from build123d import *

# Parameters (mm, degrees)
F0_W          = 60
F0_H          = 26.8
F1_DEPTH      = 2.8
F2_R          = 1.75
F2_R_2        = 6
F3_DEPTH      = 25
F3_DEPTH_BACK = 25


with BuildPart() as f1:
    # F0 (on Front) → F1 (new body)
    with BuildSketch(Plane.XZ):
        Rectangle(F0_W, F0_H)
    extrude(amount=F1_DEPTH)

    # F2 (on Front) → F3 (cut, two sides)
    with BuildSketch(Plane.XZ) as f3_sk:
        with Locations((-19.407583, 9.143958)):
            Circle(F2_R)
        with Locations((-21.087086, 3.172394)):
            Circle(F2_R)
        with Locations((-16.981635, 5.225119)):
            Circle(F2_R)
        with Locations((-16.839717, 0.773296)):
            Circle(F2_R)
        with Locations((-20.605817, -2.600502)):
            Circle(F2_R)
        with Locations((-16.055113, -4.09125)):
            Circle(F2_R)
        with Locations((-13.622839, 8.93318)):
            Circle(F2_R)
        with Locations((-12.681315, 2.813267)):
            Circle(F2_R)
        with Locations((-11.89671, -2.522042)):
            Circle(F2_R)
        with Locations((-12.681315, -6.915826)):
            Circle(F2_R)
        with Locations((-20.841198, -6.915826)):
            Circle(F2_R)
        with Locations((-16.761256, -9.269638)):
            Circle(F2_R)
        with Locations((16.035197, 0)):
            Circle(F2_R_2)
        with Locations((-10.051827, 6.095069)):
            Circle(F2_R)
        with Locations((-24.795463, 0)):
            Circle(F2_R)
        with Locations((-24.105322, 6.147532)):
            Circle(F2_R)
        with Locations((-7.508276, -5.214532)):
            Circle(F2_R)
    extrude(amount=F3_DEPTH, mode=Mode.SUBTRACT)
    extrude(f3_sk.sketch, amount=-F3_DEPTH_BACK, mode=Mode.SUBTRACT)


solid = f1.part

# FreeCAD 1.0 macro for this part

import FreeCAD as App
import Part
import Sketcher

V = App.Vector
Q = App.Units.Quantity


def add_polygon(sketch, points):
    """Adds a closed chain of lines whose ends are joined by coincident constraints."""
    first, n = sketch.GeometryCount, len(points)
    for a, b in zip(points, points[1:] + points[:1]):
        sketch.addGeometry(Part.LineSegment(App.Vector(*a, 0), App.Vector(*b, 0)), False)
    for i in range(n):
        sketch.addConstraint(Sketcher.Constraint("Coincident", first + i, 2, first + (i + 1) % n, 1))

doc = App.newDocument("Part")
body = doc.addObject("PartDesign::Body", "Body")

# Sketch on XZ plane
sketch1 = body.newObject("Sketcher::SketchObject", "Sketch")
sketch1.AttachmentSupport = (doc.getObject("XZ_Plane"), [""])
sketch1.MapMode = "FlatFace"
add_polygon(sketch1, [(-30, 13.4), (-30, -13.4), (30, -13.4), (30, 13.4)])  # lines 0-3
sketch1.addConstraint(Sketcher.Constraint("Vertical", 0))
sketch1.addConstraint(Sketcher.Constraint("Horizontal", 1))
sketch1.addConstraint(Sketcher.Constraint("Vertical", 2))
sketch1.addConstraint(Sketcher.Constraint("Horizontal", 3))
sketch1.addConstraint(Sketcher.Constraint("Symmetric", 0, 2, 2, 2, -1, 1))
sketch1.addConstraint(Sketcher.Constraint("DistanceX", 1, 1, 1, 2, Q("60 mm")))
sketch1.addConstraint(Sketcher.Constraint("DistanceY", 0, 2, 0, 1, Q("26.8 mm")))
pad1 = body.newObject("PartDesign::Pad", "Pad")
pad1.Profile = sketch1
pad1.Length = 2.8

# Sketch on XZ plane
sketch2 = body.newObject("Sketcher::SketchObject", "Sketch001")
sketch2.AttachmentSupport = (doc.getObject("XZ_Plane"), [""])
sketch2.MapMode = "FlatFace"
sketch2.addGeometry(Part.Circle(V(-19.407583, 9.143958, 0), V(0, 0, 1), 1.75), False)
sketch2.addGeometry(Part.Circle(V(-21.087086, 3.172394, 0), V(0, 0, 1), 1.75), False)
sketch2.addGeometry(Part.Circle(V(-16.981635, 5.225119, 0), V(0, 0, 1), 1.75), False)
sketch2.addGeometry(Part.Circle(V(-16.839717, 0.773296, 0), V(0, 0, 1), 1.75), False)
sketch2.addGeometry(Part.Circle(V(-20.605817, -2.600502, 0), V(0, 0, 1), 1.75), False)
sketch2.addGeometry(Part.Circle(V(-16.055113, -4.09125, 0), V(0, 0, 1), 1.75), False)
sketch2.addGeometry(Part.Circle(V(-13.622839, 8.93318, 0), V(0, 0, 1), 1.75), False)
sketch2.addGeometry(Part.Circle(V(-12.681315, 2.813267, 0), V(0, 0, 1), 1.75), False)
sketch2.addGeometry(Part.Circle(V(-11.89671, -2.522042, 0), V(0, 0, 1), 1.75), False)
sketch2.addGeometry(Part.Circle(V(-12.681315, -6.915826, 0), V(0, 0, 1), 1.75), False)
sketch2.addGeometry(Part.Circle(V(-20.841198, -6.915826, 0), V(0, 0, 1), 1.75), False)
sketch2.addGeometry(Part.Circle(V(-16.761256, -9.269638, 0), V(0, 0, 1), 1.75), False)
sketch2.addGeometry(Part.Circle(V(16.035197, 0, 0), V(0, 0, 1), 6), False)
sketch2.addGeometry(Part.Circle(V(-10.051827, 6.095069, 0), V(0, 0, 1), 1.75), False)
sketch2.addGeometry(Part.Circle(V(-24.795463, 0, 0), V(0, 0, 1), 1.75), False)
sketch2.addGeometry(Part.Circle(V(-24.105322, 6.147532, 0), V(0, 0, 1), 1.75), False)
sketch2.addGeometry(Part.Circle(V(-7.508276, -5.214532, 0), V(0, 0, 1), 1.75), False)
sketch2.addConstraint(Sketcher.Constraint("Equal", 0, 1))
sketch2.addConstraint(Sketcher.Constraint("Equal", 1, 2))
sketch2.addConstraint(Sketcher.Constraint("Equal", 2, 3))
sketch2.addConstraint(Sketcher.Constraint("Equal", 3, 4))
sketch2.addConstraint(Sketcher.Constraint("Equal", 4, 5))
sketch2.addConstraint(Sketcher.Constraint("Equal", 5, 6))
sketch2.addConstraint(Sketcher.Constraint("Equal", 6, 7))
sketch2.addConstraint(Sketcher.Constraint("Equal", 7, 8))
sketch2.addConstraint(Sketcher.Constraint("Equal", 8, 9))
sketch2.addConstraint(Sketcher.Constraint("Equal", 9, 10))
sketch2.addConstraint(Sketcher.Constraint("Equal", 10, 11))
sketch2.addConstraint(Sketcher.Constraint("Equal", 11, 13))
sketch2.addConstraint(Sketcher.Constraint("Equal", 13, 14))
sketch2.addConstraint(Sketcher.Constraint("Equal", 14, 15))
sketch2.addConstraint(Sketcher.Constraint("Equal", 15, 16))
sketch2.addConstraint(Sketcher.Constraint("PointOnObject", 12, 3, -1))
sketch2.addConstraint(Sketcher.Constraint("PointOnObject", 14, 3, -1))
sketch2.addConstraint(Sketcher.Constraint("Horizontal", 9, 3, 10, 3))
sketch2.addConstraint(Sketcher.Constraint("Vertical", 7, 3, 9, 3))
sketch2.addConstraint(Sketcher.Constraint("Diameter", 12, Q("12 mm")))
sketch2.addConstraint(Sketcher.Constraint("Diameter", 0, Q("3.5 mm")))
sketch2.addConstraint(Sketcher.Constraint("DistanceY", 3, 3, 1, 3, Q("2.399098 mm")))
sketch2.addConstraint(Sketcher.Constraint("DistanceX", 4, 3, 3, 3, Q("3.7661 mm")))
sketch2.addConstraint(Sketcher.Constraint("DistanceX", 4, 3, 9, 3, Q("7.924502 mm")))
sketch2.addConstraint(Sketcher.Constraint("DistanceY", 7, 3, 13, 3, Q("3.281802 mm")))
sketch2.addConstraint(Sketcher.Constraint("DistanceY", 16, 3, 7, 3, Q("8.027799 mm")))
sketch2.addConstraint(Sketcher.Constraint("DistanceY", -1, 1, 2, 3, Q("5.225119 mm")))
sketch2.addConstraint(Sketcher.Constraint("DistanceY", 5, 3, -1, 1, Q("4.09125 mm")))
sketch2.addConstraint(Sketcher.Constraint("DistanceX", 6, 3, -1, 1, Q("13.622839 mm")))
sketch2.addConstraint(Sketcher.Constraint("DistanceY", -1, 1, 6, 3, Q("8.93318 mm")))
sketch2.addConstraint(Sketcher.Constraint("DistanceX", 8, 3, -1, 1, Q("11.89671 mm")))
sketch2.addConstraint(Sketcher.Constraint("DistanceY", 8, 3, -1, 1, Q("2.522042 mm")))
sketch2.addConstraint(Sketcher.Constraint("DistanceY", -1, 1, 13, 3, Q("6.095069 mm")))
sketch2.addConstraint(Sketcher.Constraint("DistanceX", 1, 3, 2, 3, Q("4.105451 mm")))
sketch2.addConstraint(Sketcher.Constraint("DistanceY", 2, 3, 0, 3, Q("3.918839 mm")))
sketch2.addConstraint(Sketcher.Constraint("DistanceX", 2, 3, 3, 3, Q("0.141918 mm")))
sketch2.addConstraint(Sketcher.Constraint("DistanceY", 3, 3, 0, 3, Q("8.370662 mm")))
sketch2.addConstraint(Sketcher.Constraint("DistanceY", 4, 3, 2, 3, Q("7.825621 mm")))
sketch2.addConstraint(Sketcher.Constraint("DistanceX", 0, 3, 5, 3, Q("3.35247 mm")))
sketch2.addConstraint(Sketcher.Constraint("DistanceX", 10, 3, 4, 3, Q("0.235381 mm")))
sketch2.addConstraint(Sketcher.Constraint("DistanceX", 11, 3, 9, 3, Q("4.079941 mm")))
sketch2.addConstraint(Sketcher.Constraint("DistanceY", 11, 3, 5, 3, Q("5.178388 mm")))
sketch2.addConstraint(Sketcher.Constraint("DistanceX", 5, 3, 12, 3, Q("32.09031 mm")))
sketch2.addConstraint(Sketcher.Constraint("DistanceX", 7, 3, 13, 3, Q("2.629488 mm")))
sketch2.addConstraint(Sketcher.Constraint("DistanceX", 14, 3, 2, 3, Q("7.813828 mm")))
sketch2.addConstraint(Sketcher.Constraint("DistanceX", 15, 3, 0, 3, Q("4.697739 mm")))
sketch2.addConstraint(Sketcher.Constraint("DistanceX", 14, 3, 15, 3, Q("0.690141 mm")))
sketch2.addConstraint(Sketcher.Constraint("DistanceX", 9, 3, 16, 3, Q("5.173039 mm")))
sketch2.addConstraint(Sketcher.Constraint("DistanceX", 0, 3, -1, 1, Q("19.407583 mm")))
sketch2.addConstraint(Sketcher.Constraint("DistanceY", 9, 3, -1, 1, Q("6.915826 mm")))
sketch2.addConstraint(Sketcher.Constraint("DistanceY", -1, 1, 15, 3, Q("6.147532 mm")))
pocket1 = body.newObject("PartDesign::Pocket", "Pocket")
pocket1.Profile = sketch2
pocket1.Type = "ThroughAll"
pocket1.Midplane = True

doc.recompute()
